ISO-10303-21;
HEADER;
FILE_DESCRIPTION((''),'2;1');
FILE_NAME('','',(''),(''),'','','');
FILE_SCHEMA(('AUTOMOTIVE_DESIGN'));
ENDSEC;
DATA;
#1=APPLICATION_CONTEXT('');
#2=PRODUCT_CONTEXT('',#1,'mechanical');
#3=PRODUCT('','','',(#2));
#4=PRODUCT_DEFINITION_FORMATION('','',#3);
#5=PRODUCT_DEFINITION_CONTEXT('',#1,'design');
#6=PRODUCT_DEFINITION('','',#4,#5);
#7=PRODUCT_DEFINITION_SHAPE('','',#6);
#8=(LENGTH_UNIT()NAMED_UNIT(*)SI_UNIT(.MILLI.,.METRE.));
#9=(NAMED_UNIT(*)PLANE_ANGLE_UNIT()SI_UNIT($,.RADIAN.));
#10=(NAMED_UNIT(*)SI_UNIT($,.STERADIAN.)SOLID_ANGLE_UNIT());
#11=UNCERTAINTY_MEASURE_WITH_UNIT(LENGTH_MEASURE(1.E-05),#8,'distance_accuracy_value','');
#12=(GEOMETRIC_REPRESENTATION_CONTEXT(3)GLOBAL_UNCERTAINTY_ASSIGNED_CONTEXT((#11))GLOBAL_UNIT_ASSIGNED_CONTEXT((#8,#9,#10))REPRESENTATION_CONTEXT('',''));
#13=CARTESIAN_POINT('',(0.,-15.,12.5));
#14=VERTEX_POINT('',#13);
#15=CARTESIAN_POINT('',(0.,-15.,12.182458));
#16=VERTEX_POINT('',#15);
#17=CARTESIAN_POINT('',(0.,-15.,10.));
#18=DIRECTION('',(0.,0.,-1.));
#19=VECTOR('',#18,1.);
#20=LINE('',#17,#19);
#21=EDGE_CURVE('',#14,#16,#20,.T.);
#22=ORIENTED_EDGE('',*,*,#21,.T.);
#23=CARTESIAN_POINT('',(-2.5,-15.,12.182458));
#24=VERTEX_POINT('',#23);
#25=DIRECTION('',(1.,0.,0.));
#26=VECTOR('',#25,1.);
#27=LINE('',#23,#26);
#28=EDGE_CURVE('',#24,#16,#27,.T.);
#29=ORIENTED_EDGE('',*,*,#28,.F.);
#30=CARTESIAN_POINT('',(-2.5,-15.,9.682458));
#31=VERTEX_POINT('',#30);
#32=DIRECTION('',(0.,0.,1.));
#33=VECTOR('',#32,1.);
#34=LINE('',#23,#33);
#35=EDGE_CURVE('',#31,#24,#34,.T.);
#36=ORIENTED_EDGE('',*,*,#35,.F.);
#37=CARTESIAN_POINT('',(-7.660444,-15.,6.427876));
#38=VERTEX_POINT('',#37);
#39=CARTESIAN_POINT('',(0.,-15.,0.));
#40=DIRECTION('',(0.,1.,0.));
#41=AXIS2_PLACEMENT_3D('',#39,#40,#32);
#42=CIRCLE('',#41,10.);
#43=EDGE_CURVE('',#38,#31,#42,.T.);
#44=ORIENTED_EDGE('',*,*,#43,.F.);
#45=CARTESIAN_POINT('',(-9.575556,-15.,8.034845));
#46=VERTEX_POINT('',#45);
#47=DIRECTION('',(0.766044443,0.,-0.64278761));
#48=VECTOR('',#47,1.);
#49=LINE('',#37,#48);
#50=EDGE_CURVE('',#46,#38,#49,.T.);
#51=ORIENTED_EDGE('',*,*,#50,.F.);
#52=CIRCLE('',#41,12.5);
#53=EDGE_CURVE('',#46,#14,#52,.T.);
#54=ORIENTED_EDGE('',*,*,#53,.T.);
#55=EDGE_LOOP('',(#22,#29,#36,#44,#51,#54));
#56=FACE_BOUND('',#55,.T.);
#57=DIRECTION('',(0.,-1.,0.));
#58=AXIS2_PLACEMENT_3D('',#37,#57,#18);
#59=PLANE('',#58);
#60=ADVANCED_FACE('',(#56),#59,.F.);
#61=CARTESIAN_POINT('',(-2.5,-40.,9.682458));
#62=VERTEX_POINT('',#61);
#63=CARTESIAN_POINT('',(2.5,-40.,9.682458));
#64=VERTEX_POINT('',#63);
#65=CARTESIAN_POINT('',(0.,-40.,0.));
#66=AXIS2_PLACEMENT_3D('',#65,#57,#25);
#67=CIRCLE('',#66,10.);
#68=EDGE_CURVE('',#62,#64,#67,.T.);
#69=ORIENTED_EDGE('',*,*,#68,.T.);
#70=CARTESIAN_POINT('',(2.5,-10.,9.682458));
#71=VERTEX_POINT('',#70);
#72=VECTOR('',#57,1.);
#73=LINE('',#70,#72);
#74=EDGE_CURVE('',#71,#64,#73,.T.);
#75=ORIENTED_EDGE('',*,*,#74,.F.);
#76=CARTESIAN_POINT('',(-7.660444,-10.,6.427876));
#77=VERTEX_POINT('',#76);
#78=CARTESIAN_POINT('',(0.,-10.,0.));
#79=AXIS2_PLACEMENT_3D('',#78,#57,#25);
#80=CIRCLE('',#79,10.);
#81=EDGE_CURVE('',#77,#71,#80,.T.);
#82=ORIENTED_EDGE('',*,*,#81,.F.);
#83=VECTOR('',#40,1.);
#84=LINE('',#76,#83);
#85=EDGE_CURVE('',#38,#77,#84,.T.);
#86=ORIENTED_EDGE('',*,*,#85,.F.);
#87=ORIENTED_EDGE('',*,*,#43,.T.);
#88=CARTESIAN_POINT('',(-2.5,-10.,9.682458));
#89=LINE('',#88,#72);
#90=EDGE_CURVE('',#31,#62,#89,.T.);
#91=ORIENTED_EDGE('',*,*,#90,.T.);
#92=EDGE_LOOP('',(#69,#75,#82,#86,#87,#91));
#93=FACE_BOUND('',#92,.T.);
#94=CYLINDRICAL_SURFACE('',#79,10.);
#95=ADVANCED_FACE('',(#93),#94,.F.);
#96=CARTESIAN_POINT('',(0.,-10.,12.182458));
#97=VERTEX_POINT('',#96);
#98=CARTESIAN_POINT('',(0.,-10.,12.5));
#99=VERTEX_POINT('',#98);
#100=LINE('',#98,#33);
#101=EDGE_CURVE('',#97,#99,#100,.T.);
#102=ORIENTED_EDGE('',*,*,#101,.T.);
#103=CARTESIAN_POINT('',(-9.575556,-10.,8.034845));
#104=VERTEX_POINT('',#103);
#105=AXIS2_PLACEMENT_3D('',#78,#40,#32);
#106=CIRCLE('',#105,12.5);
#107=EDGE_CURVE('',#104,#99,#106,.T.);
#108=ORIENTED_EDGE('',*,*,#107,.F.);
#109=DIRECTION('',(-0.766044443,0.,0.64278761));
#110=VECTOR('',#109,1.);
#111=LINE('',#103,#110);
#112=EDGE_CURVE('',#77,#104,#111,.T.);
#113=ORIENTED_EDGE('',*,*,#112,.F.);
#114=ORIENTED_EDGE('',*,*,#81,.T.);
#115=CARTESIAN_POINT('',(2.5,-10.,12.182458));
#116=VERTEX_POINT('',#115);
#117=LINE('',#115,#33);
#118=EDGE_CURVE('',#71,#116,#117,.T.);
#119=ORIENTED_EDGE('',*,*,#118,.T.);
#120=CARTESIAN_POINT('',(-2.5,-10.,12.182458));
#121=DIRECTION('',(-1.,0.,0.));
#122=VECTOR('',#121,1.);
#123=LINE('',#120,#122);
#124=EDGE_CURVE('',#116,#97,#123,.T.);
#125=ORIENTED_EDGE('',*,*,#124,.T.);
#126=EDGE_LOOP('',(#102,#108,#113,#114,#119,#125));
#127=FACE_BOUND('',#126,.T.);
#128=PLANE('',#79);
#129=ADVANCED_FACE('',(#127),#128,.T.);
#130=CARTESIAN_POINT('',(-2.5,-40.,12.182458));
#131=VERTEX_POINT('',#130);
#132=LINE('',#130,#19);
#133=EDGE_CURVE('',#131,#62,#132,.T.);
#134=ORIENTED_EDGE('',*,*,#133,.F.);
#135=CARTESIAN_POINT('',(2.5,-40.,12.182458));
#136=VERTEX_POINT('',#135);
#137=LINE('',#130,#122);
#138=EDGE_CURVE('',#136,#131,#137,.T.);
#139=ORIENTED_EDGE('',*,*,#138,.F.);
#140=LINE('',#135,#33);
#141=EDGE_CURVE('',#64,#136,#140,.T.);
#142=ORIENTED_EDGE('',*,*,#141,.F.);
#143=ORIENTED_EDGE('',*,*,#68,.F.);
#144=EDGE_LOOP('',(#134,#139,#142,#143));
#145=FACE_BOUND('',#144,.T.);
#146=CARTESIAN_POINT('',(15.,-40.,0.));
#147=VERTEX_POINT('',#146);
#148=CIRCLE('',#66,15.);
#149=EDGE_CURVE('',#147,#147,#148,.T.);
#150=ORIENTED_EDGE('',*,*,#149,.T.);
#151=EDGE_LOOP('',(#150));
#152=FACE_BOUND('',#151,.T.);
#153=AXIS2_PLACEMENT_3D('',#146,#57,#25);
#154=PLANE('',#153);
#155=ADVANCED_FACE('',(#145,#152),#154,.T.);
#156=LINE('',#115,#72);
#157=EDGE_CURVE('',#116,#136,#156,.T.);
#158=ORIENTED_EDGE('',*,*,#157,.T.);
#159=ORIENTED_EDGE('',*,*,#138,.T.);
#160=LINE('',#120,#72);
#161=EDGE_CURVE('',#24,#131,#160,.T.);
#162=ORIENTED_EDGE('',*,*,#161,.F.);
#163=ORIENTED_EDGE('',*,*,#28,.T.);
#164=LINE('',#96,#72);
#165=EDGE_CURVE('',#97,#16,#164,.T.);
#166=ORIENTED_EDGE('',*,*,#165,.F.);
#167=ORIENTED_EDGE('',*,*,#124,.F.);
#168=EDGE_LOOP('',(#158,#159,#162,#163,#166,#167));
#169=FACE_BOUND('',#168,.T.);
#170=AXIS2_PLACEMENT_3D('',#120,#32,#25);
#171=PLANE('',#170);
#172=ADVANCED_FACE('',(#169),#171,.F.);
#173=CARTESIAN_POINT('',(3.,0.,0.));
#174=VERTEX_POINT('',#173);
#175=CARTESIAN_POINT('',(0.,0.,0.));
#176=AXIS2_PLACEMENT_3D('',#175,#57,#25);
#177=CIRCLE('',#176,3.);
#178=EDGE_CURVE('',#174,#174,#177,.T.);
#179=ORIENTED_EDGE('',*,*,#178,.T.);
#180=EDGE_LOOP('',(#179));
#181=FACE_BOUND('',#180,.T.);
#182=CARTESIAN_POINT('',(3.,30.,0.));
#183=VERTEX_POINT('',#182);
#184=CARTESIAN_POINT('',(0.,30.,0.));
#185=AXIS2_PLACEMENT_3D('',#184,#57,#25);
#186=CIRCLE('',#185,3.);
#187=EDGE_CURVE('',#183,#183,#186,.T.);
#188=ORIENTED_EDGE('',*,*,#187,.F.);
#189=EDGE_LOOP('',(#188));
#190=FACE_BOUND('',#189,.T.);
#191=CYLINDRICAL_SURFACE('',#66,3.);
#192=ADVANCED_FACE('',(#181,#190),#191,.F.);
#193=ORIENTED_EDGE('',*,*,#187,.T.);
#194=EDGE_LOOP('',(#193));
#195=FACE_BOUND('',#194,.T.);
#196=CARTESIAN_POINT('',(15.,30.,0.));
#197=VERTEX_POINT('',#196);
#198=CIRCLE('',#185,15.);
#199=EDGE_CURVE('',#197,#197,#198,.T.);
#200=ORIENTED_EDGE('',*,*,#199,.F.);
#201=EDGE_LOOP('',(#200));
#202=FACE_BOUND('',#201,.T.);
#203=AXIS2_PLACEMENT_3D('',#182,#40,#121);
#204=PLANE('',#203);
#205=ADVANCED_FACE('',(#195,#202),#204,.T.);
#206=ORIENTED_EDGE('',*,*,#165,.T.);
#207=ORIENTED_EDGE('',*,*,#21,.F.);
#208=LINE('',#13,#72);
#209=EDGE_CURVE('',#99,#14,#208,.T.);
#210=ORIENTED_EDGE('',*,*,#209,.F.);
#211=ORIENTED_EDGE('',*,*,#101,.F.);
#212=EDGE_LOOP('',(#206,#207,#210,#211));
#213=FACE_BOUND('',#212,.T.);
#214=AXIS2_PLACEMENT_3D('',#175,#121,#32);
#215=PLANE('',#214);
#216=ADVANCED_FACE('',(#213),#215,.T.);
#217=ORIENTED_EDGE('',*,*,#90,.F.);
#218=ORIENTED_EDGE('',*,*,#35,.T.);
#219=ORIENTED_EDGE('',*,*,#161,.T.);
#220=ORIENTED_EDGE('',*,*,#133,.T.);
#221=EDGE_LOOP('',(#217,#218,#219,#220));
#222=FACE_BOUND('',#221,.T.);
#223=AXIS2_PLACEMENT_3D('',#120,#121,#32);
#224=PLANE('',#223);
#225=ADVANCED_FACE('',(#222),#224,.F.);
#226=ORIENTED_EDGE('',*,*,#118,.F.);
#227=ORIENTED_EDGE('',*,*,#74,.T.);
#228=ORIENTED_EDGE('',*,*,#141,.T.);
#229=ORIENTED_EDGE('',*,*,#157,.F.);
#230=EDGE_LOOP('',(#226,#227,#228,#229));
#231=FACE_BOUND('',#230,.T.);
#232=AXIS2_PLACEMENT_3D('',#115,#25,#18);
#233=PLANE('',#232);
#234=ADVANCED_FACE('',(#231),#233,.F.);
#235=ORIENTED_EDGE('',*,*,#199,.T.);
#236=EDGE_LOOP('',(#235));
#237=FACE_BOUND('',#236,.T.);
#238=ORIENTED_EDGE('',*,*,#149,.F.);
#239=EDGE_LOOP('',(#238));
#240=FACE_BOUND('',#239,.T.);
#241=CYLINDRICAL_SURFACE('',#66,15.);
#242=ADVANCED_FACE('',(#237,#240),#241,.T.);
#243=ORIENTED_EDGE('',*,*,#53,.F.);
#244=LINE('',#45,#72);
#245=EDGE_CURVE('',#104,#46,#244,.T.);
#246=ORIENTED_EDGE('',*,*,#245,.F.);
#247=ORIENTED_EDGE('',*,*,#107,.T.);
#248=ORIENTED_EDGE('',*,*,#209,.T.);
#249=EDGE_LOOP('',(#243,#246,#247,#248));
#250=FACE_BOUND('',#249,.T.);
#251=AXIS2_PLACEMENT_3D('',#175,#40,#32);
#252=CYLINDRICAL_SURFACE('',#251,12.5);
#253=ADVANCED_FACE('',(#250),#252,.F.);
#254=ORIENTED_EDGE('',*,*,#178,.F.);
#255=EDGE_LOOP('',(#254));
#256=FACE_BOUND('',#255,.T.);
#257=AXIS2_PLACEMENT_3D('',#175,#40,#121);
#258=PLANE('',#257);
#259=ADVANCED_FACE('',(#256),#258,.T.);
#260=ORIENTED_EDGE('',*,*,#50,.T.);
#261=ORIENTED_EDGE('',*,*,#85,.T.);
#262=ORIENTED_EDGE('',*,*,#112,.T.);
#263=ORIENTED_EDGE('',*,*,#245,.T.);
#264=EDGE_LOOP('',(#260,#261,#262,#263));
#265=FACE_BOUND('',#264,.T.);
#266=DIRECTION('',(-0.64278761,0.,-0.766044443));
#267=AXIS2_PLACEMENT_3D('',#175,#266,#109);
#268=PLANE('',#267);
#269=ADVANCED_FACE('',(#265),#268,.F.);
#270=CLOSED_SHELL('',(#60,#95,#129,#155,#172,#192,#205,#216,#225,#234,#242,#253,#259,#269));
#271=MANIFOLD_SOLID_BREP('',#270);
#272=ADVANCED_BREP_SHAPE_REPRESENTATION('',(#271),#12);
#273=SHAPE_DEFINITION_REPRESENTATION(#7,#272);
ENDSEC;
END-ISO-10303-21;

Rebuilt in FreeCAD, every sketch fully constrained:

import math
import FreeCAD as App
import Part
import Sketcher

V = App.Vector
Q = App.Units.Quantity

doc = App.newDocument("Part")
body = doc.addObject("PartDesign::Body", "Body")

# Sketch on XY plane
sketch1 = body.newObject("Sketcher::SketchObject", "Sketch")
sketch1.AttachmentSupport = (doc.getObject("XY_Plane"), [""])
sketch1.MapMode = "FlatFace"
sketch1.addGeometry([
    Part.LineSegment(V(15, 30, 0), V(3, 30, 0)),  # 0
    Part.LineSegment(V(3, 30, 0), V(3, 0, 0)),  # 1
    Part.LineSegment(V(3, 0, 0), V(0, 0, 0)),  # 2
    Part.LineSegment(V(0, 0, 0), V(0, -40, 0)),  # 3
    Part.LineSegment(V(0, -40, 0), V(15, -40, 0)),  # 4
    Part.LineSegment(V(15, -40, 0), V(15, 30, 0)),  # 5
], False)
sketch1.addConstraint([
    Sketcher.Constraint("Coincident", 0, 2, 1, 1),
    Sketcher.Constraint("Coincident", 1, 2, 2, 1),
    Sketcher.Constraint("Coincident", 2, 2, 3, 1),
    Sketcher.Constraint("Coincident", 3, 2, 4, 1),
    Sketcher.Constraint("Coincident", 4, 2, 5, 1),
    Sketcher.Constraint("Coincident", 5, 2, 0, 1),
    Sketcher.Constraint("Horizontal", 0),
    Sketcher.Constraint("Vertical", 1),
    Sketcher.Constraint("Horizontal", 2),
    Sketcher.Constraint("Vertical", 3),
    Sketcher.Constraint("Horizontal", 4),
    Sketcher.Constraint("Vertical", 5),
    Sketcher.Constraint("Coincident", 2, 2, -1, 1),
    Sketcher.Constraint("DistanceX", 0, 2, 0, 1, Q("12 mm")),
    Sketcher.Constraint("DistanceX", 2, 2, 2, 1, Q("3 mm")),
    Sketcher.Constraint("DistanceY", 1, 2, 1, 1, Q("30 mm")),
    Sketcher.Constraint("DistanceY", 3, 2, 3, 1, Q("40 mm")),
])
revolution = body.newObject("PartDesign::Revolution", "Revolution")
revolution.Profile = sketch1
revolution.ReferenceAxis = (sketch1, ["V_Axis"])
revolution.Angle = 360

# Sketch on XZ plane
sketch2 = body.newObject("Sketcher::SketchObject", "Sketch001")
sketch2.AttachmentSupport = (doc.getObject("XZ_Plane"), [""])
sketch2.MapMode = "FlatFace"
sketch2.AttachmentOffset = App.Placement(V(0, 0, 40), App.Rotation())
sketch2.addGeometry([
    Part.LineSegment(V(-2.5, 12.2, 0), V(-2.5, 9.7, 0)),
    Part.ArcOfCircle(Part.Circle(V(0, 0, 0), V(0, 0, 1), 10), math.radians(104), math.radians(436)),
    Part.LineSegment(V(2.5, 9.7, 0), V(2.5, 12.2, 0)),
    Part.LineSegment(V(2.5, 12.2, 0), V(-2.5, 12.2, 0)),
], False)
sketch2.addConstraint([
    Sketcher.Constraint("Coincident", 0, 2, 1, 1),
    Sketcher.Constraint("Coincident", 1, 2, 2, 1),
    Sketcher.Constraint("Coincident", 2, 2, 3, 1),
    Sketcher.Constraint("Coincident", 3, 2, 0, 1),
    Sketcher.Constraint("Vertical", 0),
    Sketcher.Constraint("Vertical", 2),
    Sketcher.Constraint("Horizontal", 3),
    Sketcher.Constraint("Coincident", 1, 3, -1, 1),
    Sketcher.Constraint("Horizontal", 0, 2, 1, 2),
    Sketcher.Constraint("Radius", 1, Q("10 mm")),
    Sketcher.Constraint("DistanceX", 3, 2, 3, 1, Q("5 mm")),
    Sketcher.Constraint("DistanceY", 0, 2, 0, 1, Q("2.5 mm")),
])
pocket1 = body.newObject("PartDesign::Pocket", "Pocket")
pocket1.Profile = sketch2
pocket1.Length = 30

# Sketch on YZ plane
sketch3 = body.newObject("Sketcher::SketchObject", "Sketch002")
sketch3.AttachmentSupport = (doc.getObject("YZ_Plane"), [""])
sketch3.MapMode = "FlatFace"
sketch3.addGeometry([
    Part.LineSegment(V(-10, 12.5, 0), V(-15, 12.5, 0)),
    Part.LineSegment(V(-15, 12.5, 0), V(-15, 10, 0)),
    Part.LineSegment(V(-15, 10, 0), V(-10, 10, 0)),
    Part.LineSegment(V(-10, 10, 0), V(-10, 12.5, 0)),
], False)
sketch3.addConstraint([
    Sketcher.Constraint("Coincident", 0, 2, 1, 1),
    Sketcher.Constraint("Coincident", 1, 2, 2, 1),
    Sketcher.Constraint("Coincident", 2, 2, 3, 1),
    Sketcher.Constraint("Coincident", 3, 2, 0, 1),
    Sketcher.Constraint("Horizontal", 0),
    Sketcher.Constraint("Vertical", 1),
    Sketcher.Constraint("Horizontal", 2),
    Sketcher.Constraint("Vertical", 3),
    Sketcher.Constraint("DistanceX", 0, 2, 0, 1, Q("5 mm")),
    Sketcher.Constraint("DistanceY", 1, 2, 1, 1, Q("2.5 mm")),
    Sketcher.Constraint("DistanceX", 0, 2, -1, 1, Q("15 mm")),
    Sketcher.Constraint("DistanceY", -1, 1, 1, 2, Q("10 mm")),
])
groove = body.newObject("PartDesign::Groove", "Groove")
groove.Profile = sketch3
groove.ReferenceAxis = (sketch3, ["H_Axis"])
groove.Angle = 50
groove.Reversed = True

doc.recompute()
